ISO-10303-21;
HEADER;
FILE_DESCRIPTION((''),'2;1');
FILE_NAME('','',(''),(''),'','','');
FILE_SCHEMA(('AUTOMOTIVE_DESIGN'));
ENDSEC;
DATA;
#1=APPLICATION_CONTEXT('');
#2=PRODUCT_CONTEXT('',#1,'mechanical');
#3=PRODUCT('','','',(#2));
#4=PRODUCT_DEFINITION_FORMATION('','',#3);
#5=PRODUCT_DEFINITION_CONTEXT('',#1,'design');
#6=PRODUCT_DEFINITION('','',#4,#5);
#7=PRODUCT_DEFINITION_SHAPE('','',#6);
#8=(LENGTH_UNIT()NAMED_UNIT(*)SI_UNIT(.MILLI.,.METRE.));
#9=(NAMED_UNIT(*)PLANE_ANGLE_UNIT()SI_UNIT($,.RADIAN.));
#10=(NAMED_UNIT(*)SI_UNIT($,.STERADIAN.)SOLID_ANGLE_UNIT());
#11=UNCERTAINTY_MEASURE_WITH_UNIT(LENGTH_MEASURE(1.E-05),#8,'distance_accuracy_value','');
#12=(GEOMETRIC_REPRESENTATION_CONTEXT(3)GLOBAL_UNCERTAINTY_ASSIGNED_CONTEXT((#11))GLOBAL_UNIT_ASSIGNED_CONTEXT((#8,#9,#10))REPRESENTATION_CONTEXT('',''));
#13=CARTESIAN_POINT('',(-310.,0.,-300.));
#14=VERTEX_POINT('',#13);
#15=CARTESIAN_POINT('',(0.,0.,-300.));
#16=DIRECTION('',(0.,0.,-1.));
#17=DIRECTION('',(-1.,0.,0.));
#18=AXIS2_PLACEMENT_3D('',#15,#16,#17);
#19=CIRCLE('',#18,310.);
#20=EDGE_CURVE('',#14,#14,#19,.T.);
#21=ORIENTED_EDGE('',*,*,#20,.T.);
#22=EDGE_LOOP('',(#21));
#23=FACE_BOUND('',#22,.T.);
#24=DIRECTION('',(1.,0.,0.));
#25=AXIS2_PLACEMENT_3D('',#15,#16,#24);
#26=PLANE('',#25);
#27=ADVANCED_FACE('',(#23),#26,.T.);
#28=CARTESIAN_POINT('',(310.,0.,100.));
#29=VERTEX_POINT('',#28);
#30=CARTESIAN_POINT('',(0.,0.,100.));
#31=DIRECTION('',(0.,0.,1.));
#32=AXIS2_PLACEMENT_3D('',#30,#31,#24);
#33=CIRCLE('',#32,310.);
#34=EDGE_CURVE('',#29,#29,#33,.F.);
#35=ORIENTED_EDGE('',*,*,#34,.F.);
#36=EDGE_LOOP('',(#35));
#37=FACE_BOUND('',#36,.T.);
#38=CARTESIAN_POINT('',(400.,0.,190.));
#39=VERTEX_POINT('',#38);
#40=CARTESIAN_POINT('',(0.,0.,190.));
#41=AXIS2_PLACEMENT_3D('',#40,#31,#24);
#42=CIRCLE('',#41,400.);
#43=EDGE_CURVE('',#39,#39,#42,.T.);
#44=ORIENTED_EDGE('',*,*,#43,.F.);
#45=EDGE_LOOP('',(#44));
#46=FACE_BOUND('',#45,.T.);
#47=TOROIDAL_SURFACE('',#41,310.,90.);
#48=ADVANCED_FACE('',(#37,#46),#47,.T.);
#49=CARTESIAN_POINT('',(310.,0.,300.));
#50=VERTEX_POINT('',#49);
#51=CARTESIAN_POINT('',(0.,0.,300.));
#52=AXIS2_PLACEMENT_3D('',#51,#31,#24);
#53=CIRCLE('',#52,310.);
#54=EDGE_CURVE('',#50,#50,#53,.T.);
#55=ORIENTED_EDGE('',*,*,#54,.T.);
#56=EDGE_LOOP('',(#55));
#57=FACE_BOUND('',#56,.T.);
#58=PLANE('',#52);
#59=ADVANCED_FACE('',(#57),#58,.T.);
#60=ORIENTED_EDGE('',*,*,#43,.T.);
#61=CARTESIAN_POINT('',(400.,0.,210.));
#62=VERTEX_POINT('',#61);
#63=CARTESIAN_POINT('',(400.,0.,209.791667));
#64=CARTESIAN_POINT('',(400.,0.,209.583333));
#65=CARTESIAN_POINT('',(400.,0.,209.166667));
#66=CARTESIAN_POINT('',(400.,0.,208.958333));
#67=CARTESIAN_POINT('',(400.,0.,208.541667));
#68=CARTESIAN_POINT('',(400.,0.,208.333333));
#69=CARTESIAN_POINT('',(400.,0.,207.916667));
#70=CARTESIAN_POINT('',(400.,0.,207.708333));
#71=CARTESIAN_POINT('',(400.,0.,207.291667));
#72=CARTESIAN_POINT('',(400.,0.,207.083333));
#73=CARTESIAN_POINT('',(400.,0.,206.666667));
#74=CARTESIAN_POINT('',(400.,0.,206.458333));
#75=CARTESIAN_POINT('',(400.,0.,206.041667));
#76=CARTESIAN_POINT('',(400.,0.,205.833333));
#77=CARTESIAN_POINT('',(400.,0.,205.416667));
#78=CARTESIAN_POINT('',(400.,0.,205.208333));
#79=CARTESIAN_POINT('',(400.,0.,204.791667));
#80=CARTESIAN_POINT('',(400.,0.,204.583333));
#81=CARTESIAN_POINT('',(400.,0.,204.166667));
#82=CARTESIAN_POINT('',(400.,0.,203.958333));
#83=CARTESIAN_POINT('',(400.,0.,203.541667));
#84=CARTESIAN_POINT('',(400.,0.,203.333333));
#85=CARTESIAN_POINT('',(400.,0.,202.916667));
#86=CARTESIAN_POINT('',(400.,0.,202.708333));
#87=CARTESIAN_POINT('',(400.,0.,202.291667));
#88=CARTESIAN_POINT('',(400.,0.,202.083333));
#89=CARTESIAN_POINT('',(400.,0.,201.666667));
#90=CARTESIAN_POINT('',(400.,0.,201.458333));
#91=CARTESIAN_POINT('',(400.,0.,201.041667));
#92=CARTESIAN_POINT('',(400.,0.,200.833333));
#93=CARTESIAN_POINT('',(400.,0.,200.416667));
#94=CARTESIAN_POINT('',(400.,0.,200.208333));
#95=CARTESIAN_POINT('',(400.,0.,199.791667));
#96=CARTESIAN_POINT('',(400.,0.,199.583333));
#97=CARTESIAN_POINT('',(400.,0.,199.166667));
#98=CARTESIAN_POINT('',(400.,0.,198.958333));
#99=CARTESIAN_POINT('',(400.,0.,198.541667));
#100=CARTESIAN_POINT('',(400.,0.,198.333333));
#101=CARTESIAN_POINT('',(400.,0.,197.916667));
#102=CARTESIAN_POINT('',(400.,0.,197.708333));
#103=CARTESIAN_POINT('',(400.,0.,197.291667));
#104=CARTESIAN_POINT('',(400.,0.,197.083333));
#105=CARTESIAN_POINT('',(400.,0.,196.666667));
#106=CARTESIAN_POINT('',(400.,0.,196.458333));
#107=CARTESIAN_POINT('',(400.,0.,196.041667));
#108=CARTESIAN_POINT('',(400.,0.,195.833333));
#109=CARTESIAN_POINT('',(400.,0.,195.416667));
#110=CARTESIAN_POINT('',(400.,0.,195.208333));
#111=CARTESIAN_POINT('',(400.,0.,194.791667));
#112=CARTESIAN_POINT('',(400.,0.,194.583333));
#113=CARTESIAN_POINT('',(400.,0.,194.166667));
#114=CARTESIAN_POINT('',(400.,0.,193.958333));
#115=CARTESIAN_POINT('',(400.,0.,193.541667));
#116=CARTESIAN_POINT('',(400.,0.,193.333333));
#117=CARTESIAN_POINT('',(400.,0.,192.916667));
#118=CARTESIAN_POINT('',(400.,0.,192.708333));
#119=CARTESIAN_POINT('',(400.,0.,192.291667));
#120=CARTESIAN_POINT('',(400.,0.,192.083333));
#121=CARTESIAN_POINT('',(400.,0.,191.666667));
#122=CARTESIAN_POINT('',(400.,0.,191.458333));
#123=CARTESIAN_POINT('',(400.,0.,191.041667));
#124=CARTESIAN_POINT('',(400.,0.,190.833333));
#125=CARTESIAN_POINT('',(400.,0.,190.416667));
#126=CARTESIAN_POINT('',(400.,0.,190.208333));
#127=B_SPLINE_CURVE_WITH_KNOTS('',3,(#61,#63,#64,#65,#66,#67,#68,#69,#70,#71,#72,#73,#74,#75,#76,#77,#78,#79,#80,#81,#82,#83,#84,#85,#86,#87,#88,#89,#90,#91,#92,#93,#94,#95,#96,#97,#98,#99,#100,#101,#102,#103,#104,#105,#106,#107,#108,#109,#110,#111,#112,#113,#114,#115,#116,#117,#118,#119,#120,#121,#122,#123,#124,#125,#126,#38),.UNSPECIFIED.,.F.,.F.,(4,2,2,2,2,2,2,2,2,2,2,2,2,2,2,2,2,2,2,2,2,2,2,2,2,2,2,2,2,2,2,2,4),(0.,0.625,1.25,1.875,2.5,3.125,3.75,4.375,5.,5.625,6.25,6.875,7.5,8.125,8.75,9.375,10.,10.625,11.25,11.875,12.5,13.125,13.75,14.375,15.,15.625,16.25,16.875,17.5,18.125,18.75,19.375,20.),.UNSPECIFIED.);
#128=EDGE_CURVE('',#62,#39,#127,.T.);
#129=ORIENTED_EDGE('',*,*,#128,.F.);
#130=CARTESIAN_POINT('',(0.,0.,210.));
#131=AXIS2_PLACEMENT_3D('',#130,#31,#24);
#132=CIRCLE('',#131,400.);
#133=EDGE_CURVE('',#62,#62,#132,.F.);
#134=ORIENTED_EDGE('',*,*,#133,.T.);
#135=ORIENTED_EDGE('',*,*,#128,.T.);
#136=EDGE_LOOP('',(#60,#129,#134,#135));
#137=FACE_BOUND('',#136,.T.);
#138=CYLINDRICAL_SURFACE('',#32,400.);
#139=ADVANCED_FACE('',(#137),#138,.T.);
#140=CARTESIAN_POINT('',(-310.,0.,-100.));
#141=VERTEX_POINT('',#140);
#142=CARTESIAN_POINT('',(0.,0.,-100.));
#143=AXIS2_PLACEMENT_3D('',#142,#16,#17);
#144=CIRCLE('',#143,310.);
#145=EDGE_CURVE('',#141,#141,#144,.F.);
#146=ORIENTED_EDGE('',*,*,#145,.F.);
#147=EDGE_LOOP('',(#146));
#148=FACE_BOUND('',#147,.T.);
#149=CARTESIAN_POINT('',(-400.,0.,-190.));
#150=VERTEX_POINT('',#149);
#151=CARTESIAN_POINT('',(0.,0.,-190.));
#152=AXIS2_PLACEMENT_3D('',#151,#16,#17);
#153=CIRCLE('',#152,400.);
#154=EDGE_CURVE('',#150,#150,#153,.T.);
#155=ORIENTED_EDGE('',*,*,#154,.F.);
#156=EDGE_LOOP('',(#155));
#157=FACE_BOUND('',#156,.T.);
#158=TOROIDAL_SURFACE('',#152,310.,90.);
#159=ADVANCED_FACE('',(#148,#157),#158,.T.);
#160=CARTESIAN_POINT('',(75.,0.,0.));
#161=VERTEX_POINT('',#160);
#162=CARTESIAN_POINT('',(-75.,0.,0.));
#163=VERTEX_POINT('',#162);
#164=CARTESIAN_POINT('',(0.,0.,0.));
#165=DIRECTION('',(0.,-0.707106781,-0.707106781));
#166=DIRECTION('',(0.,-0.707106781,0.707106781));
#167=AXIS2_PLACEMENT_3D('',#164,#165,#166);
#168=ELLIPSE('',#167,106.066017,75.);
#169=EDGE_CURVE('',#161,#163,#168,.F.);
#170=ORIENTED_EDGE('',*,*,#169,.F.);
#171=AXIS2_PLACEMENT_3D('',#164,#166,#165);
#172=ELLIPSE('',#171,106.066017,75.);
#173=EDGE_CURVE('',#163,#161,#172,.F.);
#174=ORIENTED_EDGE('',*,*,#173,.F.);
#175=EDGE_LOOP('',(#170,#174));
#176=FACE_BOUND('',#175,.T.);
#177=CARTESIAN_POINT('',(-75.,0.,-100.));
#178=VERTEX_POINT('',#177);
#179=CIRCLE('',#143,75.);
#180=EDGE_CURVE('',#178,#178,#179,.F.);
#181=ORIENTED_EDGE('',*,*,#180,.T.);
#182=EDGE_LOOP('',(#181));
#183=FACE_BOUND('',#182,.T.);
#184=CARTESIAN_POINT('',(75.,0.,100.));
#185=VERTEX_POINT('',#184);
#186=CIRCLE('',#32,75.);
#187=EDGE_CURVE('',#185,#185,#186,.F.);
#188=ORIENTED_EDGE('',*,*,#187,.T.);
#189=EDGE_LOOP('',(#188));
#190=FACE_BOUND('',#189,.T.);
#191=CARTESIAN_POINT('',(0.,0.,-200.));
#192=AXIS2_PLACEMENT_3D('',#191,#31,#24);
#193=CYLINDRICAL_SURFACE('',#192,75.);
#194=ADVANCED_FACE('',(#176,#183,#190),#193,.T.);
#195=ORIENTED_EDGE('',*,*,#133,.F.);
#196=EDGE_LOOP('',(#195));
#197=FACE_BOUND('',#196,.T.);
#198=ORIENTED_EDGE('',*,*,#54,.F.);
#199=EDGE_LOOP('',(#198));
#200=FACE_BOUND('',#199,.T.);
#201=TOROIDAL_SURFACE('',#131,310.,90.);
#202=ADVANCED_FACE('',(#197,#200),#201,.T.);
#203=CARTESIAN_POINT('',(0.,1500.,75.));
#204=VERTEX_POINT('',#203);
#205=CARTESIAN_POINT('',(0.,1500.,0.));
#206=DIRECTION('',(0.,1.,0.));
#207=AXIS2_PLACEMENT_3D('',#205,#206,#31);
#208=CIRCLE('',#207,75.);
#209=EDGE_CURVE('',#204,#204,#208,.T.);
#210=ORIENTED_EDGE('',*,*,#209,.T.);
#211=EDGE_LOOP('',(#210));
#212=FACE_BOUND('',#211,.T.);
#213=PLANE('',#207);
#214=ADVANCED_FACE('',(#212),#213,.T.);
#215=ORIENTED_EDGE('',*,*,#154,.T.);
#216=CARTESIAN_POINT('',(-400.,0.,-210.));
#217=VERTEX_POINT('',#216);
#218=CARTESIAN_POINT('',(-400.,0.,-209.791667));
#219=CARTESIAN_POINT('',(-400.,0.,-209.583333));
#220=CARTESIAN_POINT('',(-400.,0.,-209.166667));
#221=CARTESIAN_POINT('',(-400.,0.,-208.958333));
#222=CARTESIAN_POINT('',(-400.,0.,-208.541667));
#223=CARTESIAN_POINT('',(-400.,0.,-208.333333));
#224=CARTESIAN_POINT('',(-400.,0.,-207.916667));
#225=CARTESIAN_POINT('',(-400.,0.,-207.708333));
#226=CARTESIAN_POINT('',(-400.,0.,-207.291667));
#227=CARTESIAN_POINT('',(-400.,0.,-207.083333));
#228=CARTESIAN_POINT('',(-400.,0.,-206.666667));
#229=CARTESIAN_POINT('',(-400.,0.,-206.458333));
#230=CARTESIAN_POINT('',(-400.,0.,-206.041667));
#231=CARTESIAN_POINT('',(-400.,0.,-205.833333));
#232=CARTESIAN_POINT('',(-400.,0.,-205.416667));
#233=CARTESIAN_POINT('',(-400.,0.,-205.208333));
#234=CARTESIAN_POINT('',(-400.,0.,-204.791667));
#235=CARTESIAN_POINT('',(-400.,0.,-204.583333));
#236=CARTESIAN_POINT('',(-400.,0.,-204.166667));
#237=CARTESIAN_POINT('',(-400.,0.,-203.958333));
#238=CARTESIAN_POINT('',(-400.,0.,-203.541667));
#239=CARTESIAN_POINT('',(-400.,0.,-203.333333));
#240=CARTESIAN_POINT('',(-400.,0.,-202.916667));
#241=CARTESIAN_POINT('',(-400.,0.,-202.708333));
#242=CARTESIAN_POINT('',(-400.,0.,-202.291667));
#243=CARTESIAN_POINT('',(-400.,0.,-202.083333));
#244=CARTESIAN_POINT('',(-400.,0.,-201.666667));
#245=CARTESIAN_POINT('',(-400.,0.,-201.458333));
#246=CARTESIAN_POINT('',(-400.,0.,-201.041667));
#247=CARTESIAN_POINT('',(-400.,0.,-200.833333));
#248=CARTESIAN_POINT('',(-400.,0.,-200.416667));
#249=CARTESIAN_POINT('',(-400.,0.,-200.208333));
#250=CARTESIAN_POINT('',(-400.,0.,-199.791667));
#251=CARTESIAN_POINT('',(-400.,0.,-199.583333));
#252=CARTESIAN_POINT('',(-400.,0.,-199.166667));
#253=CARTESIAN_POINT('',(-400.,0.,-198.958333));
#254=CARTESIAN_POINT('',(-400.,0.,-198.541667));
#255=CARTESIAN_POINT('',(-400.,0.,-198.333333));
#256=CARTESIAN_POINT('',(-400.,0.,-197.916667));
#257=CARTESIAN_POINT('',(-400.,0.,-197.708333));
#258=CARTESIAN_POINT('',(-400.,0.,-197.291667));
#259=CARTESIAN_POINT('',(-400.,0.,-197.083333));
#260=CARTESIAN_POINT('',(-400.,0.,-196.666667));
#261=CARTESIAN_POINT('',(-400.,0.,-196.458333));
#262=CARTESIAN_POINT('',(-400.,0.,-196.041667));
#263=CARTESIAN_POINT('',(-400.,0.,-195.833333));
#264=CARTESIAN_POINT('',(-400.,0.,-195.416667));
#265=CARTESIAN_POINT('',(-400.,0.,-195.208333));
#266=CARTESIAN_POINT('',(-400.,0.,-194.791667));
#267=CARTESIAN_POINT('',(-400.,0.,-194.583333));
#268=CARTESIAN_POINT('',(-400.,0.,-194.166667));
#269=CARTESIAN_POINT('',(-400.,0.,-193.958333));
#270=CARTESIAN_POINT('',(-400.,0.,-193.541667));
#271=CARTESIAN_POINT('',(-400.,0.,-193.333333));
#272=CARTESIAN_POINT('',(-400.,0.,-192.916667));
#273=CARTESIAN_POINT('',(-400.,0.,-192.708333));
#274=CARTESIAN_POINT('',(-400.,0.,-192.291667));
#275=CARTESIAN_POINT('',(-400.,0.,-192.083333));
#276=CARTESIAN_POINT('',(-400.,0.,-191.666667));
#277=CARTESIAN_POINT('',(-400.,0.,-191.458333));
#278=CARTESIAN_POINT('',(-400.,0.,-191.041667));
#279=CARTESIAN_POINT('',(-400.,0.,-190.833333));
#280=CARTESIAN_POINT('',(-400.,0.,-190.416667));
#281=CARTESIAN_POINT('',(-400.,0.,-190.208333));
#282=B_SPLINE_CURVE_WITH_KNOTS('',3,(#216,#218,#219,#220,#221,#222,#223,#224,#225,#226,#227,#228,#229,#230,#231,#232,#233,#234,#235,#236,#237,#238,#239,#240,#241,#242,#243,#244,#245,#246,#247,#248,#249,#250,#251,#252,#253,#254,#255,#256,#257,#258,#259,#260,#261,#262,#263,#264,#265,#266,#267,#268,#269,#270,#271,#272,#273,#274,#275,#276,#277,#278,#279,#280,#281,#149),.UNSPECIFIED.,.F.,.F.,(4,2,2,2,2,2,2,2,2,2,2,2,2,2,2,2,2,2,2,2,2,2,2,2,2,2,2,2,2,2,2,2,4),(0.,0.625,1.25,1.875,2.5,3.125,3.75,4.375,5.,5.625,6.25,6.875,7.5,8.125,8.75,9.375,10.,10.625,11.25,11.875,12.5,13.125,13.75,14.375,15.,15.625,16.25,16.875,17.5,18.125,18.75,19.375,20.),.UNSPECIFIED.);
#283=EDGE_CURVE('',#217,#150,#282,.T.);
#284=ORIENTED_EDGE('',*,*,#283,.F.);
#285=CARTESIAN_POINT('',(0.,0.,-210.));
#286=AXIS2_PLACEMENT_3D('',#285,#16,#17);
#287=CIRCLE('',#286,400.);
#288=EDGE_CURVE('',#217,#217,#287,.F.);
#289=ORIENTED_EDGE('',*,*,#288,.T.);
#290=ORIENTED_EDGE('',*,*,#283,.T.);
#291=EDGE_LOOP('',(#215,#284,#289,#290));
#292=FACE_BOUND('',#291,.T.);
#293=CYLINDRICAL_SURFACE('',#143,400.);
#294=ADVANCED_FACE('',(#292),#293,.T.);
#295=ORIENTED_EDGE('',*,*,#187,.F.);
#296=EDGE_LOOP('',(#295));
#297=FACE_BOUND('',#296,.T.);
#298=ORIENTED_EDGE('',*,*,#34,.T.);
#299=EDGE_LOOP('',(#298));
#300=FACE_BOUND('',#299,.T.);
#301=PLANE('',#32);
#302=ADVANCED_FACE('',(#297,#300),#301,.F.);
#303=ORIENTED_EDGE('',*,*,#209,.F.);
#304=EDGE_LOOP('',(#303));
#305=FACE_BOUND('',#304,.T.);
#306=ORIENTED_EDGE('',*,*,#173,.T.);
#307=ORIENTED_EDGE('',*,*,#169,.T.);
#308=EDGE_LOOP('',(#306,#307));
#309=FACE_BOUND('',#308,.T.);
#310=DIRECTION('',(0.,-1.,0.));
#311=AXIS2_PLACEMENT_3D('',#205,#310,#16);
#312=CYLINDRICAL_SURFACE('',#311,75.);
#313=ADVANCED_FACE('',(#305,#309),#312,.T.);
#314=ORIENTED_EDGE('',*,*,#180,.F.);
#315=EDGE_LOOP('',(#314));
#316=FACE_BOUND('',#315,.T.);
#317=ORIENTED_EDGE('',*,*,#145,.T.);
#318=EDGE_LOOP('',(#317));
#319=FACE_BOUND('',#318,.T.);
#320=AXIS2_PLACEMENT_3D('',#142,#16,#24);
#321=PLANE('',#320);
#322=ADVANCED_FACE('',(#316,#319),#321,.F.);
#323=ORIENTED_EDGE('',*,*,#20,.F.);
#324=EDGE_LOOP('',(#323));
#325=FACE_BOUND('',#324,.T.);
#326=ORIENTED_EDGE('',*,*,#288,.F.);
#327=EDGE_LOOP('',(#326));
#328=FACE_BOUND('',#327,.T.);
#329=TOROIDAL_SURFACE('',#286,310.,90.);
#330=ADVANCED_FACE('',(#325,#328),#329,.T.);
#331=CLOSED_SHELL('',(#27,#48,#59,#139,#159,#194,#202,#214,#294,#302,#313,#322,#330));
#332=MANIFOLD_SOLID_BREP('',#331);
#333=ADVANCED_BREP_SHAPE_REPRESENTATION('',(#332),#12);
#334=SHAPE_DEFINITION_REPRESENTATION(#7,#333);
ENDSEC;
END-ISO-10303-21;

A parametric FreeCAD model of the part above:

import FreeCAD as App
import Part
import Sketcher

V = App.Vector


def edges_at(feature, points):
    """Names of the edges that pass closest to the given points."""
    edges = feature.Shape.Edges
    near = lambda p: min(range(len(edges)), key=lambda i: edges[i].distToShape(Part.Vertex(*p))[0])
    return sorted({f"Edge{near(p) + 1}" for p in points})

doc = App.newDocument("Part")
body = doc.addObject("PartDesign::Body", "Body")

# Sketch on XZ plane
sketch1 = body.newObject("Sketcher::SketchObject", "Sketch")
sketch1.AttachmentSupport = (doc.getObject("XZ_Plane"), [""])
sketch1.MapMode = "FlatFace"
sketch1.addGeometry(Part.Circle(V(0, 0, 0), V(0, 0, 1), 75), False)
sketch1.addConstraint(Sketcher.Constraint("Coincident", 0, 3, -1, 1))
sketch1.addConstraint(Sketcher.Constraint("Diameter", 0, 150.0))
pad1 = body.newObject("PartDesign::Pad", "Pad")
pad1.Profile = sketch1
pad1.Length = 1500
pad1.Reversed = True

# Sketch on XY plane
sketch2 = body.newObject("Sketcher::SketchObject", "Sketch001")
sketch2.AttachmentSupport = (doc.getObject("XY_Plane"), [""])
sketch2.MapMode = "FlatFace"
sketch2.addGeometry(Part.Circle(V(0, 0, 0), V(0, 0, 1), 75), False)
sketch2.addConstraint(Sketcher.Constraint("Coincident", 0, 3, -1, 1))
sketch2.addConstraint(Sketcher.Constraint("Diameter", 0, 150.0))
pad2 = body.newObject("PartDesign::Pad", "Pad001")
pad2.Profile = sketch2
pad2.Type = "TwoLengths"
pad2.Length = 200
pad2.Length2 = 200

# Sketch on XY plane
sketch3 = body.newObject("Sketcher::SketchObject", "Sketch002")
sketch3.AttachmentSupport = (doc.getObject("XY_Plane"), [""])
sketch3.MapMode = "FlatFace"
sketch3.AttachmentOffset = App.Placement(V(0, 0, 200), App.Rotation())
sketch3.addGeometry(Part.Circle(V(0, 0, 0), V(0, 0, 1), 400), False)
sketch3.addConstraint(Sketcher.Constraint("Coincident", 0, 3, -1, 1))
sketch3.addConstraint(Sketcher.Constraint("Diameter", 0, 800.0))
pad3 = body.newObject("PartDesign::Pad", "Pad002")
pad3.Profile = sketch3
pad3.Length = 200
pad3.Midplane = True
doc.recompute()

fillet = body.newObject("PartDesign::Fillet", "Fillet")
fillet.Base = (pad3, edges_at(pad3, [(-400, 0, 100), (-400, 0, 300)]))
fillet.Radius = 90
doc.recompute()

mirrored = body.newObject("PartDesign::Mirrored", "Mirrored")
mirrored.Originals = [pad3]
mirrored.MirrorPlane = (doc.getObject("XY_Plane"), [""])
body.Tip = mirrored
doc.recompute()

fillet2 = body.newObject("PartDesign::Fillet", "Fillet001")
fillet2.Base = (mirrored, edges_at(mirrored, [(-400, 0, -100), (-400, 0, -300)]))
fillet2.Radius = 90

doc.recompute()
